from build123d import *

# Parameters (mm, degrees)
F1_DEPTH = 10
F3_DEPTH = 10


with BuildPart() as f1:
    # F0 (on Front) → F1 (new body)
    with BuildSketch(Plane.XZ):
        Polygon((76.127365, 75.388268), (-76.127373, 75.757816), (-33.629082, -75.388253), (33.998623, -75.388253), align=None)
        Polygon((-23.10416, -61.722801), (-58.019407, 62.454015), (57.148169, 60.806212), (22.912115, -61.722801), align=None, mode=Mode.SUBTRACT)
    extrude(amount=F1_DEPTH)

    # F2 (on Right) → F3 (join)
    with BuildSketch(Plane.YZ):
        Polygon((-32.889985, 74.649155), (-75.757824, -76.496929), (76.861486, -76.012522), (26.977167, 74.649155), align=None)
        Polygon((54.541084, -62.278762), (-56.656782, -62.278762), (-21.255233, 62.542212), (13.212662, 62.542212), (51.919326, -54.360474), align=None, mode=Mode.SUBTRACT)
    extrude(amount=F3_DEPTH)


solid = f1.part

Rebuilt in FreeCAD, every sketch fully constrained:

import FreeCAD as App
import Part
import Sketcher
from FreeCAD import Vector
Q = App.Units.Quantity


def add_polygon(sketch, points):
    """Adds a closed chain of lines whose ends are joined by coincident constraints."""
    first, n = sketch.GeometryCount, len(points)
    for a, b in zip(points, points[1:] + points[:1]):
        sketch.addGeometry(Part.LineSegment(App.Vector(*a, 0), App.Vector(*b, 0)), False)
    for i in range(n):
        sketch.addConstraint(Sketcher.Constraint("Coincident", first + i, 2, first + (i + 1) % n, 1))

doc = App.newDocument("Part")
body = doc.addObject("PartDesign::Body", "Body")

sketch1 = body.newObject("Sketcher::SketchObject", "Sketch")
sketch1.AttachmentSupport = (doc.getObject("XZ_Plane"), [""])
sketch1.MapMode = "FlatFace"
add_polygon(sketch1, [(76.127365, 75.388268), (-76.127373, 75.757816), (-33.629082, -75.388253), (33.998623, -75.388253)])
add_polygon(sketch1, [(22.912115, -61.722801), (-23.10416, -61.722801), (-58.019407, 62.454015), (57.148169, 60.806212)])
sketch1.addConstraint(Sketcher.Constraint("Horizontal", 2))
sketch1.addConstraint(Sketcher.Constraint("Horizontal", 4))
sketch1.addConstraint(Sketcher.Constraint("Parallel", 1, 5))
sketch1.addConstraint(Sketcher.Constraint("Parallel", 3, 7))
sketch1.addConstraint(Sketcher.Constraint("DistanceY", 4, 2, -1, 1, Q("61.722801 mm")))
sketch1.addConstraint(Sketcher.Constraint("DistanceY", 5, 2, 0, 2, Q("13.303801 mm")))
sketch1.addConstraint(Sketcher.Constraint("Distance", 1, Q("157.00713 mm")))
sketch1.addConstraint(Sketcher.Constraint("DistanceX", 2, 1, 2, 2, Q("67.627705 mm")))
sketch1.addConstraint(Sketcher.Constraint("DistanceX", 4, 2, 4, 1, Q("46.016275 mm")))
sketch1.addConstraint(Sketcher.Constraint("DistanceX", 1, 2, -1, 1, Q("33.629082 mm")))
sketch1.addConstraint(Sketcher.Constraint("DistanceX", 4, 2, -1, 1, Q("23.10416 mm")))
sketch1.addConstraint(Sketcher.Constraint("DistanceX", -1, 1, 6, 2, Q("57.148169 mm")))
sketch1.addConstraint(Sketcher.Constraint("DistanceX", 0, 2, 1, 2, Q("42.498291 mm")))
sketch1.addConstraint(Sketcher.Constraint("DistanceX", 0, 2, 3, 2, Q("152.254738 mm")))
sketch1.addConstraint(Sketcher.Constraint("DistanceY", 3, 2, 0, 2, Q("0.369548 mm")))
sketch1.addConstraint(Sketcher.Constraint("DistanceY", 4, 2, 3, 2, Q("137.111069 mm")))
pad1 = body.newObject("PartDesign::Pad", "Pad")
pad1.Profile = sketch1
pad1.Length = 10

sketch2 = body.newObject("Sketcher::SketchObject", "Sketch001")
sketch2.AttachmentSupport = (doc.getObject("YZ_Plane"), [""])
sketch2.MapMode = "FlatFace"
add_polygon(sketch2, [(-32.889985, 74.649155), (-75.757824, -76.496929), (76.861486, -76.012522), (26.977167, 74.649155)])
add_polygon(sketch2, [(51.919326, -54.360474), (54.541084, -62.278762), (-56.656782, -62.278762), (-21.255233, 62.542212), (13.212662, 62.542212)])
sketch2.addConstraint(Sketcher.Constraint("Horizontal", 3))
sketch2.addConstraint(Sketcher.Constraint("Horizontal", 5))
sketch2.addConstraint(Sketcher.Constraint("Horizontal", 7))
sketch2.addConstraint(Sketcher.Constraint("Parallel", 2, 4))
sketch2.addConstraint(Sketcher.Constraint("Parallel", 0, 6))
sketch2.addConstraint(Sketcher.Constraint("Parallel", 4, 8))
sketch2.addConstraint(Sketcher.Constraint("DistanceX", 6, 2, 2, 2, Q("48.2324 mm")))
sketch2.addConstraint(Sketcher.Constraint("Distance", 1, Q("152.620079 mm")))
sketch2.addConstraint(Sketcher.Constraint("DistanceX", 3, 2, 3, 1, Q("59.867152 mm")))
sketch2.addConstraint(Sketcher.Constraint("DistanceX", 5, 2, 5, 1, Q("111.197866 mm")))
sketch2.addConstraint(Sketcher.Constraint("DistanceX", 7, 1, 7, 2, Q("34.467895 mm")))
sketch2.addConstraint(Sketcher.Constraint("DistanceY", 0, 2, -1, 1, Q("76.496929 mm")))
sketch2.addConstraint(Sketcher.Constraint("DistanceX", 2, 2, 1, 2, Q("49.884319 mm")))
sketch2.addConstraint(Sketcher.Constraint("DistanceY", 1, 2, 4, 2, Q("13.73376 mm")))
sketch2.addConstraint(Sketcher.Constraint("DistanceX", 3, 2, 4, 2, Q("87.431069 mm")))
sketch2.addConstraint(Sketcher.Constraint("DistanceY", 0, 2, 6, 2, Q("139.039141 mm")))
sketch2.addConstraint(Sketcher.Constraint("DistanceX", 8, 2, 1, 2, Q("24.94216 mm")))
sketch2.addConstraint(Sketcher.Constraint("DistanceX", 0, 2, -1, 1, Q("75.757824 mm")))
pad2 = body.newObject("PartDesign::Pad", "Pad001")
pad2.Profile = sketch2
pad2.Length = 10

doc.recompute()
